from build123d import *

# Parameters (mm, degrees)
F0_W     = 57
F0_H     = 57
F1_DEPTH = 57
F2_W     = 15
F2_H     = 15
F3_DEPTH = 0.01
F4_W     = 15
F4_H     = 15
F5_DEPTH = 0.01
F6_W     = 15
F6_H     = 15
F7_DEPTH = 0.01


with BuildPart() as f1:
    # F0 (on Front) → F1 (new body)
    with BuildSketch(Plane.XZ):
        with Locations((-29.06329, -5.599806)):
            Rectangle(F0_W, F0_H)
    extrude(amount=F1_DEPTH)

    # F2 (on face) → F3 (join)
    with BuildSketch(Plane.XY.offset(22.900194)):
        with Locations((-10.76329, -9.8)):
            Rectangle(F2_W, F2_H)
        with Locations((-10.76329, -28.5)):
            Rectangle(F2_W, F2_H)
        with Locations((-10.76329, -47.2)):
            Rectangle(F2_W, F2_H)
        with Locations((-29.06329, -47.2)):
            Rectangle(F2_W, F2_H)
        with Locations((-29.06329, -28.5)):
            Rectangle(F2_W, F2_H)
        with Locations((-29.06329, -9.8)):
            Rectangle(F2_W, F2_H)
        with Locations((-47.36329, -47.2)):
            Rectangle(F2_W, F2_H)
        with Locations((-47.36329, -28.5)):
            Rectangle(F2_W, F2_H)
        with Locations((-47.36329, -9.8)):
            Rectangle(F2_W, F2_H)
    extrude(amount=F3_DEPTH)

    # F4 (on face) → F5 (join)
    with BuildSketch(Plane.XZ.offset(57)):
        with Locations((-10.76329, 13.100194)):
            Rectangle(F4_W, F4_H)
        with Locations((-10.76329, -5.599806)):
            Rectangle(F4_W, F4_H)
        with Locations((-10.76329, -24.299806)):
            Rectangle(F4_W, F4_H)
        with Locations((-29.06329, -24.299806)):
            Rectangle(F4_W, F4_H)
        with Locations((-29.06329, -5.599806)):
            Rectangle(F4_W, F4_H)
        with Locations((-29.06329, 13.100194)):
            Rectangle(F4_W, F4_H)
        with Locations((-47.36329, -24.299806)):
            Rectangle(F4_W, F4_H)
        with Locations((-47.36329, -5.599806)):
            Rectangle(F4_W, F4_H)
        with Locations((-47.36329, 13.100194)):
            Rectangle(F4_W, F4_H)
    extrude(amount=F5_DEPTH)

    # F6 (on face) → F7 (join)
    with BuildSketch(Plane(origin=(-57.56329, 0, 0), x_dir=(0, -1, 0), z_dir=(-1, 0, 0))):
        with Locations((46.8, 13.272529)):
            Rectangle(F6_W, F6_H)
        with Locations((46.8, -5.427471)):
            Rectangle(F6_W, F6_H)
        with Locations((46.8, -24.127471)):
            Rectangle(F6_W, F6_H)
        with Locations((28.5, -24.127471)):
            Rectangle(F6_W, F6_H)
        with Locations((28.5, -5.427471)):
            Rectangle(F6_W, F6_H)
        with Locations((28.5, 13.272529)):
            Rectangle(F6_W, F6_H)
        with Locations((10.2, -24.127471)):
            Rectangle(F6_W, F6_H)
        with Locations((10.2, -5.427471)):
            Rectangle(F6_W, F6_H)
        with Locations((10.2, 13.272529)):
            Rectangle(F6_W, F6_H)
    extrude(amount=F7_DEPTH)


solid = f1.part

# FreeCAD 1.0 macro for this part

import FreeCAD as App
import Part
import Sketcher

V = App.Vector
Q = App.Units.Quantity

doc = App.newDocument("Part")
body = doc.addObject("PartDesign::Body", "Body")

sketch1 = body.newObject("Sketcher::SketchObject", "Sketch")
sketch1.AttachmentSupport = (doc.getObject("XZ_Plane"), [""])
sketch1.MapMode = "FlatFace"
sketch1.addGeometry([
    Part.LineSegment(V(-57.56329, 22.900194, 0), V(-57.56329, -34.099806, 0)),
    Part.LineSegment(V(-57.56329, -34.099806, 0), V(-0.56329, -34.099806, 0)),
    Part.LineSegment(V(-0.56329, -34.099806, 0), V(-0.56329, 22.900194, 0)),
    Part.LineSegment(V(-0.56329, 22.900194, 0), V(-57.56329, 22.900194, 0)),
], False)
sketch1.addConstraint([
    Sketcher.Constraint("Coincident", 0, 2, 1, 1),
    Sketcher.Constraint("Coincident", 1, 2, 2, 1),
    Sketcher.Constraint("Coincident", 2, 2, 3, 1),
    Sketcher.Constraint("Coincident", 3, 2, 0, 1),
    Sketcher.Constraint("Vertical", 0),
    Sketcher.Constraint("Horizontal", 1),
    Sketcher.Constraint("Vertical", 2),
    Sketcher.Constraint("Horizontal", 3),
    Sketcher.Constraint("Equal", 3, 0),
    Sketcher.Constraint("DistanceX", 1, 1, 1, 2, Q("57 mm")),
    Sketcher.Constraint("DistanceX", 0, 2, -1, 1, Q("57.56329 mm")),
    Sketcher.Constraint("DistanceY", 0, 2, -1, 1, Q("34.099806 mm")),
])
pad1 = body.newObject("PartDesign::Pad", "Pad")
pad1.Profile = sketch1
pad1.Length = 57

sketch2 = body.newObject("Sketcher::SketchObject", "Sketch001")
sketch2.AttachmentSupport = (doc.getObject("XY_Plane"), [""])
sketch2.MapMode = "FlatFace"
sketch2.AttachmentOffset = App.Placement(V(0, 0, 22.900194), App.Rotation())
sketch2.addGeometry([
    Part.LineSegment(V(-18.26329, -2.3, 0), V(-18.26329, -17.3, 0)),
    Part.LineSegment(V(-18.26329, -17.3, 0), V(-3.26329, -17.3, 0)),
    Part.LineSegment(V(-3.26329, -17.3, 0), V(-3.26329, -2.3, 0)),
    Part.LineSegment(V(-3.26329, -2.3, 0), V(-18.26329, -2.3, 0)),
    Part.LineSegment(V(-18.26329, -21, 0), V(-18.26329, -36, 0)),
    Part.LineSegment(V(-18.26329, -36, 0), V(-3.26329, -36, 0)),
    Part.LineSegment(V(-3.26329, -36, 0), V(-3.26329, -21, 0)),
    Part.LineSegment(V(-3.26329, -21, 0), V(-18.26329, -21, 0)),
    Part.LineSegment(V(-18.26329, -39.7, 0), V(-18.26329, -54.7, 0)),
    Part.LineSegment(V(-18.26329, -54.7, 0), V(-3.26329, -54.7, 0)),
    Part.LineSegment(V(-3.26329, -54.7, 0), V(-3.26329, -39.7, 0)),
    Part.LineSegment(V(-3.26329, -39.7, 0), V(-18.26329, -39.7, 0)),
    Part.LineSegment(V(-36.56329, -39.7, 0), V(-36.56329, -54.7, 0)),
    Part.LineSegment(V(-36.56329, -54.7, 0), V(-21.56329, -54.7, 0)),
    Part.LineSegment(V(-21.56329, -54.7, 0), V(-21.56329, -39.7, 0)),
    Part.LineSegment(V(-21.56329, -39.7, 0), V(-36.56329, -39.7, 0)),
    Part.LineSegment(V(-36.56329, -21, 0), V(-36.56329, -36, 0)),
    Part.LineSegment(V(-36.56329, -36, 0), V(-21.56329, -36, 0)),
    Part.LineSegment(V(-21.56329, -36, 0), V(-21.56329, -21, 0)),
    Part.LineSegment(V(-21.56329, -21, 0), V(-36.56329, -21, 0)),
    Part.LineSegment(V(-36.56329, -2.3, 0), V(-36.56329, -17.3, 0)),
    Part.LineSegment(V(-36.56329, -17.3, 0), V(-21.56329, -17.3, 0)),
    Part.LineSegment(V(-21.56329, -17.3, 0), V(-21.56329, -2.3, 0)),
    Part.LineSegment(V(-21.56329, -2.3, 0), V(-36.56329, -2.3, 0)),
    Part.LineSegment(V(-54.86329, -39.7, 0), V(-54.86329, -54.7, 0)),
    Part.LineSegment(V(-54.86329, -54.7, 0), V(-39.86329, -54.7, 0)),
    Part.LineSegment(V(-39.86329, -54.7, 0), V(-39.86329, -39.7, 0)),
    Part.LineSegment(V(-39.86329, -39.7, 0), V(-54.86329, -39.7, 0)),
    Part.LineSegment(V(-54.86329, -21, 0), V(-54.86329, -36, 0)),
    Part.LineSegment(V(-54.86329, -36, 0), V(-39.86329, -36, 0)),
    Part.LineSegment(V(-39.86329, -36, 0), V(-39.86329, -21, 0)),
    Part.LineSegment(V(-39.86329, -21, 0), V(-54.86329, -21, 0)),
    Part.LineSegment(V(-54.86329, -2.3, 0), V(-54.86329, -17.3, 0)),
    Part.LineSegment(V(-54.86329, -17.3, 0), V(-39.86329, -17.3, 0)),
    Part.LineSegment(V(-39.86329, -17.3, 0), V(-39.86329, -2.3, 0)),
    Part.LineSegment(V(-39.86329, -2.3, 0), V(-54.86329, -2.3, 0)),
], False)
sketch2.addConstraint([
    Sketcher.Constraint("Coincident", 0, 2, 1, 1),
    Sketcher.Constraint("Coincident", 1, 2, 2, 1),
    Sketcher.Constraint("Coincident", 2, 2, 3, 1),
    Sketcher.Constraint("Coincident", 3, 2, 0, 1),
    Sketcher.Constraint("Coincident", 4, 2, 5, 1),
    Sketcher.Constraint("Coincident", 5, 2, 6, 1),
    Sketcher.Constraint("Coincident", 6, 2, 7, 1),
    Sketcher.Constraint("Coincident", 7, 2, 4, 1),
    Sketcher.Constraint("Coincident", 8, 2, 9, 1),
    Sketcher.Constraint("Coincident", 9, 2, 10, 1),
    Sketcher.Constraint("Coincident", 10, 2, 11, 1),
    Sketcher.Constraint("Coincident", 11, 2, 8, 1),
    Sketcher.Constraint("Coincident", 12, 2, 13, 1),
    Sketcher.Constraint("Coincident", 13, 2, 14, 1),
    Sketcher.Constraint("Coincident", 14, 2, 15, 1),
    Sketcher.Constraint("Coincident", 15, 2, 12, 1),
    Sketcher.Constraint("Coincident", 16, 2, 17, 1),
    Sketcher.Constraint("Coincident", 17, 2, 18, 1),
    Sketcher.Constraint("Coincident", 18, 2, 19, 1),
    Sketcher.Constraint("Coincident", 19, 2, 16, 1),
    Sketcher.Constraint("Coincident", 20, 2, 21, 1),
    Sketcher.Constraint("Coincident", 21, 2, 22, 1),
    Sketcher.Constraint("Coincident", 22, 2, 23, 1),
    Sketcher.Constraint("Coincident", 23, 2, 20, 1),
    Sketcher.Constraint("Coincident", 24, 2, 25, 1),
    Sketcher.Constraint("Coincident", 25, 2, 26, 1),
    Sketcher.Constraint("Coincident", 26, 2, 27, 1),
    Sketcher.Constraint("Coincident", 27, 2, 24, 1),
    Sketcher.Constraint("Coincident", 28, 2, 29, 1),
    Sketcher.Constraint("Coincident", 29, 2, 30, 1),
    Sketcher.Constraint("Coincident", 30, 2, 31, 1),
    Sketcher.Constraint("Coincident", 31, 2, 28, 1),
    Sketcher.Constraint("Coincident", 32, 2, 33, 1),
    Sketcher.Constraint("Coincident", 33, 2, 34, 1),
    Sketcher.Constraint("Coincident", 34, 2, 35, 1),
    Sketcher.Constraint("Coincident", 35, 2, 32, 1),
    Sketcher.Constraint("Vertical", 0),
    Sketcher.Constraint("Horizontal", 1),
    Sketcher.Constraint("Vertical", 2),
    Sketcher.Constraint("Horizontal", 3),
    Sketcher.Constraint("Vertical", 4),
    Sketcher.Constraint("Horizontal", 5),
    Sketcher.Constraint("Vertical", 6),
    Sketcher.Constraint("Horizontal", 7),
    Sketcher.Constraint("Vertical", 8),
    Sketcher.Constraint("Horizontal", 9),
    Sketcher.Constraint("Vertical", 10),
    Sketcher.Constraint("Horizontal", 11),
    Sketcher.Constraint("Vertical", 12),
    Sketcher.Constraint("Horizontal", 13),
    Sketcher.Constraint("Vertical", 14),
    Sketcher.Constraint("Horizontal", 15),
    Sketcher.Constraint("Vertical", 16),
    Sketcher.Constraint("Horizontal", 17),
    Sketcher.Constraint("Vertical", 18),
    Sketcher.Constraint("Horizontal", 19),
    Sketcher.Constraint("Vertical", 20),
    Sketcher.Constraint("Horizontal", 21),
    Sketcher.Constraint("Vertical", 22),
    Sketcher.Constraint("Horizontal", 23),
    Sketcher.Constraint("Vertical", 24),
    Sketcher.Constraint("Horizontal", 25),
    Sketcher.Constraint("Vertical", 26),
    Sketcher.Constraint("Horizontal", 27),
    Sketcher.Constraint("Vertical", 28),
    Sketcher.Constraint("Horizontal", 29),
    Sketcher.Constraint("Vertical", 30),
    Sketcher.Constraint("Horizontal", 31),
    Sketcher.Constraint("Vertical", 32),
    Sketcher.Constraint("Horizontal", 33),
    Sketcher.Constraint("Vertical", 34),
    Sketcher.Constraint("Horizontal", 35),
    Sketcher.Constraint("Horizontal", 9, 2, 12, 2),
    Sketcher.Constraint("Horizontal", 11, 2, 14, 2),
    Sketcher.Constraint("Horizontal", 5, 2, 16, 2),
    Sketcher.Constraint("Horizontal", 7, 2, 18, 2),
    Sketcher.Constraint("Horizontal", 1, 2, 20, 2),
    Sketcher.Constraint("Horizontal", 3, 2, 22, 2),
    Sketcher.Constraint("Horizontal", 13, 2, 24, 2),
    Sketcher.Constraint("Horizontal", 15, 2, 26, 2),
    Sketcher.Constraint("Horizontal", 17, 2, 28, 2),
    Sketcher.Constraint("Horizontal", 19, 2, 30, 2),
    Sketcher.Constraint("Horizontal", 21, 2, 32, 2),
    Sketcher.Constraint("Horizontal", 23, 2, 34, 2),
    Sketcher.Constraint("Vertical", 3, 2, 4, 2),
    Sketcher.Constraint("Vertical", 2, 2, 5, 2),
    Sketcher.Constraint("Vertical", 7, 2, 8, 2),
    Sketcher.Constraint("Vertical", 6, 2, 9, 2),
    Sketcher.Constraint("Vertical", 15, 2, 16, 2),
    Sketcher.Constraint("Vertical", 14, 2, 17, 2),
    Sketcher.Constraint("Vertical", 19, 2, 20, 2),
    Sketcher.Constraint("Vertical", 18, 2, 21, 2),
    Sketcher.Constraint("Vertical", 27, 2, 28, 2),
    Sketcher.Constraint("Vertical", 26, 2, 29, 2),
    Sketcher.Constraint("Vertical", 31, 2, 32, 2),
    Sketcher.Constraint("Vertical", 30, 2, 33, 2),
    Sketcher.Constraint("Equal", 11, 13),
    Sketcher.Constraint("Equal", 23, 25),
    Sketcher.Constraint("Equal", 35, 0),
    Sketcher.Constraint("Equal", 2, 4),
    Sketcher.Constraint("Equal", 6, 8),
    Sketcher.Constraint("DistanceX", 1, 1, 1, 2, Q("15 mm")),
    Sketcher.Constraint("DistanceY", 4, 2, -1, 1, Q("36 mm")),
    Sketcher.Constraint("DistanceY", 0, 2, -1, 1, Q("17.3 mm")),
    Sketcher.Constraint("DistanceY", 8, 2, -1, 1, Q("54.7 mm")),
    Sketcher.Constraint("DistanceX", 12, 2, 8, 2, Q("18.3 mm")),
    Sketcher.Constraint("DistanceX", 24, 2, 12, 2, Q("18.3 mm")),
    Sketcher.Constraint("DistanceX", 0, 2, -1, 1, Q("18.26329 mm")),
])
pad2 = body.newObject("PartDesign::Pad", "Pad001")
pad2.Profile = sketch2
pad2.Length = 0.01

sketch3 = body.newObject("Sketcher::SketchObject", "Sketch002")
sketch3.AttachmentSupport = (doc.getObject("XZ_Plane"), [""])
sketch3.MapMode = "FlatFace"
sketch3.AttachmentOffset = App.Placement(V(0, 0, 57), App.Rotation())
sketch3.addGeometry([
    Part.LineSegment(V(-18.26329, 20.600194, 0), V(-18.26329, 5.600194, 0)),
    Part.LineSegment(V(-18.26329, 5.600194, 0), V(-3.26329, 5.600194, 0)),
    Part.LineSegment(V(-3.26329, 5.600194, 0), V(-3.26329, 20.600194, 0)),
    Part.LineSegment(V(-3.26329, 20.600194, 0), V(-18.26329, 20.600194, 0)),
    Part.LineSegment(V(-18.26329, 1.900194, 0), V(-18.26329, -13.099806, 0)),
    Part.LineSegment(V(-18.26329, -13.099806, 0), V(-3.26329, -13.099806, 0)),
    Part.LineSegment(V(-3.26329, -13.099806, 0), V(-3.26329, 1.900194, 0)),
    Part.LineSegment(V(-3.26329, 1.900194, 0), V(-18.26329, 1.900194, 0)),
    Part.LineSegment(V(-18.26329, -16.799806, 0), V(-18.26329, -31.799806, 0)),
    Part.LineSegment(V(-18.26329, -31.799806, 0), V(-3.26329, -31.799806, 0)),
    Part.LineSegment(V(-3.26329, -31.799806, 0), V(-3.26329, -16.799806, 0)),
    Part.LineSegment(V(-3.26329, -16.799806, 0), V(-18.26329, -16.799806, 0)),
    Part.LineSegment(V(-36.56329, -16.799806, 0), V(-36.56329, -31.799806, 0)),
    Part.LineSegment(V(-36.56329, -31.799806, 0), V(-21.56329, -31.799806, 0)),
    Part.LineSegment(V(-21.56329, -31.799806, 0), V(-21.56329, -16.799806, 0)),
    Part.LineSegment(V(-21.56329, -16.799806, 0), V(-36.56329, -16.799806, 0)),
    Part.LineSegment(V(-36.56329, 1.900194, 0), V(-36.56329, -13.099806, 0)),
    Part.LineSegment(V(-36.56329, -13.099806, 0), V(-21.56329, -13.099806, 0)),
    Part.LineSegment(V(-21.56329, -13.099806, 0), V(-21.56329, 1.900194, 0)),
    Part.LineSegment(V(-21.56329, 1.900194, 0), V(-36.56329, 1.900194, 0)),
    Part.LineSegment(V(-36.56329, 20.600194, 0), V(-36.56329, 5.600194, 0)),
    Part.LineSegment(V(-36.56329, 5.600194, 0), V(-21.56329, 5.600194, 0)),
    Part.LineSegment(V(-21.56329, 5.600194, 0), V(-21.56329, 20.600194, 0)),
    Part.LineSegment(V(-21.56329, 20.600194, 0), V(-36.56329, 20.600194, 0)),
    Part.LineSegment(V(-54.86329, -16.799806, 0), V(-54.86329, -31.799806, 0)),
    Part.LineSegment(V(-54.86329, -31.799806, 0), V(-39.86329, -31.799806, 0)),
    Part.LineSegment(V(-39.86329, -31.799806, 0), V(-39.86329, -16.799806, 0)),
    Part.LineSegment(V(-39.86329, -16.799806, 0), V(-54.86329, -16.799806, 0)),
    Part.LineSegment(V(-54.86329, 1.900194, 0), V(-54.86329, -13.099806, 0)),
    Part.LineSegment(V(-54.86329, -13.099806, 0), V(-39.86329, -13.099806, 0)),
    Part.LineSegment(V(-39.86329, -13.099806, 0), V(-39.86329, 1.900194, 0)),
    Part.LineSegment(V(-39.86329, 1.900194, 0), V(-54.86329, 1.900194, 0)),
    Part.LineSegment(V(-54.86329, 20.600194, 0), V(-54.86329, 5.600194, 0)),
    Part.LineSegment(V(-54.86329, 5.600194, 0), V(-39.86329, 5.600194, 0)),
    Part.LineSegment(V(-39.86329, 5.600194, 0), V(-39.86329, 20.600194, 0)),
    Part.LineSegment(V(-39.86329, 20.600194, 0), V(-54.86329, 20.600194, 0)),
], False)
sketch3.addConstraint([
    Sketcher.Constraint("Coincident", 0, 2, 1, 1),
    Sketcher.Constraint("Coincident", 1, 2, 2, 1),
    Sketcher.Constraint("Coincident", 2, 2, 3, 1),
    Sketcher.Constraint("Coincident", 3, 2, 0, 1),
    Sketcher.Constraint("Coincident", 4, 2, 5, 1),
    Sketcher.Constraint("Coincident", 5, 2, 6, 1),
    Sketcher.Constraint("Coincident", 6, 2, 7, 1),
    Sketcher.Constraint("Coincident", 7, 2, 4, 1),
    Sketcher.Constraint("Coincident", 8, 2, 9, 1),
    Sketcher.Constraint("Coincident", 9, 2, 10, 1),
    Sketcher.Constraint("Coincident", 10, 2, 11, 1),
    Sketcher.Constraint("Coincident", 11, 2, 8, 1),
    Sketcher.Constraint("Coincident", 12, 2, 13, 1),
    Sketcher.Constraint("Coincident", 13, 2, 14, 1),
    Sketcher.Constraint("Coincident", 14, 2, 15, 1),
    Sketcher.Constraint("Coincident", 15, 2, 12, 1),
    Sketcher.Constraint("Coincident", 16, 2, 17, 1),
    Sketcher.Constraint("Coincident", 17, 2, 18, 1),
    Sketcher.Constraint("Coincident", 18, 2, 19, 1),
    Sketcher.Constraint("Coincident", 19, 2, 16, 1),
    Sketcher.Constraint("Coincident", 20, 2, 21, 1),
    Sketcher.Constraint("Coincident", 21, 2, 22, 1),
    Sketcher.Constraint("Coincident", 22, 2, 23, 1),
    Sketcher.Constraint("Coincident", 23, 2, 20, 1),
    Sketcher.Constraint("Coincident", 24, 2, 25, 1),
    Sketcher.Constraint("Coincident", 25, 2, 26, 1),
    Sketcher.Constraint("Coincident", 26, 2, 27, 1),
    Sketcher.Constraint("Coincident", 27, 2, 24, 1),
    Sketcher.Constraint("Coincident", 28, 2, 29, 1),
    Sketcher.Constraint("Coincident", 29, 2, 30, 1),
    Sketcher.Constraint("Coincident", 30, 2, 31, 1),
    Sketcher.Constraint("Coincident", 31, 2, 28, 1),
    Sketcher.Constraint("Coincident", 32, 2, 33, 1),
    Sketcher.Constraint("Coincident", 33, 2, 34, 1),
    Sketcher.Constraint("Coincident", 34, 2, 35, 1),
    Sketcher.Constraint("Coincident", 35, 2, 32, 1),
    Sketcher.Constraint("Vertical", 0),
    Sketcher.Constraint("Horizontal", 1),
    Sketcher.Constraint("Vertical", 2),
    Sketcher.Constraint("Horizontal", 3),
    Sketcher.Constraint("Vertical", 4),
    Sketcher.Constraint("Horizontal", 5),
    Sketcher.Constraint("Vertical", 6),
    Sketcher.Constraint("Horizontal", 7),
    Sketcher.Constraint("Vertical", 8),
    Sketcher.Constraint("Horizontal", 9),
    Sketcher.Constraint("Vertical", 10),
    Sketcher.Constraint("Horizontal", 11),
    Sketcher.Constraint("Vertical", 12),
    Sketcher.Constraint("Horizontal", 13),
    Sketcher.Constraint("Vertical", 14),
    Sketcher.Constraint("Horizontal", 15),
    Sketcher.Constraint("Vertical", 16),
    Sketcher.Constraint("Horizontal", 17),
    Sketcher.Constraint("Vertical", 18),
    Sketcher.Constraint("Horizontal", 19),
    Sketcher.Constraint("Vertical", 20),
    Sketcher.Constraint("Horizontal", 21),
    Sketcher.Constraint("Vertical", 22),
    Sketcher.Constraint("Horizontal", 23),
    Sketcher.Constraint("Vertical", 24),
    Sketcher.Constraint("Horizontal", 25),
    Sketcher.Constraint("Vertical", 26),
    Sketcher.Constraint("Horizontal", 27),
    Sketcher.Constraint("Vertical", 28),
    Sketcher.Constraint("Horizontal", 29),
    Sketcher.Constraint("Vertical", 30),
    Sketcher.Constraint("Horizontal", 31),
    Sketcher.Constraint("Vertical", 32),
    Sketcher.Constraint("Horizontal", 33),
    Sketcher.Constraint("Vertical", 34),
    Sketcher.Constraint("Horizontal", 35),
    Sketcher.Constraint("Horizontal", 9, 2, 12, 2),
    Sketcher.Constraint("Horizontal", 11, 2, 14, 2),
    Sketcher.Constraint("Horizontal", 5, 2, 16, 2),
    Sketcher.Constraint("Horizontal", 7, 2, 18, 2),
    Sketcher.Constraint("Horizontal", 1, 2, 20, 2),
    Sketcher.Constraint("Horizontal", 3, 2, 22, 2),
    Sketcher.Constraint("Horizontal", 13, 2, 24, 2),
    Sketcher.Constraint("Horizontal", 15, 2, 26, 2),
    Sketcher.Constraint("Horizontal", 17, 2, 28, 2),
    Sketcher.Constraint("Horizontal", 19, 2, 30, 2),
    Sketcher.Constraint("Horizontal", 21, 2, 32, 2),
    Sketcher.Constraint("Horizontal", 23, 2, 34, 2),
    Sketcher.Constraint("Vertical", 3, 2, 4, 2),
    Sketcher.Constraint("Vertical", 2, 2, 5, 2),
    Sketcher.Constraint("Vertical", 7, 2, 8, 2),
    Sketcher.Constraint("Vertical", 6, 2, 9, 2),
    Sketcher.Constraint("Vertical", 15, 2, 16, 2),
    Sketcher.Constraint("Vertical", 14, 2, 17, 2),
    Sketcher.Constraint("Vertical", 19, 2, 20, 2),
    Sketcher.Constraint("Vertical", 18, 2, 21, 2),
    Sketcher.Constraint("Vertical", 27, 2, 28, 2),
    Sketcher.Constraint("Vertical", 26, 2, 29, 2),
    Sketcher.Constraint("Vertical", 31, 2, 32, 2),
    Sketcher.Constraint("Vertical", 30, 2, 33, 2),
    Sketcher.Constraint("Equal", 11, 13),
    Sketcher.Constraint("Equal", 23, 25),
    Sketcher.Constraint("Equal", 35, 0),
    Sketcher.Constraint("Equal", 2, 4),
    Sketcher.Constraint("Equal", 6, 8),
    Sketcher.Constraint("DistanceX", 1, 1, 1, 2, Q("15 mm")),
    Sketcher.Constraint("DistanceY", 4, 2, 0, 2, Q("18.7 mm")),
    Sketcher.Constraint("DistanceY", 8, 2, 4, 2, Q("18.7 mm")),
    Sketcher.Constraint("DistanceX", 12, 2, 8, 2, Q("18.3 mm")),
    Sketcher.Constraint("DistanceX", 24, 2, 12, 2, Q("18.3 mm")),
    Sketcher.Constraint("DistanceX", 0, 2, -1, 1, Q("18.26329 mm")),
    Sketcher.Constraint("DistanceY", -1, 1, 0, 2, Q("5.600194 mm")),
])
pad3 = body.newObject("PartDesign::Pad", "Pad002")
pad3.Profile = sketch3
pad3.Length = 0.01

sketch4 = body.newObject("Sketcher::SketchObject", "Sketch003")
sketch4.AttachmentSupport = (doc.getObject("YZ_Plane"), [""])
sketch4.MapMode = "FlatFace"
sketch4.AttachmentOffset = App.Placement(V(0, 0, -57.56329), App.Rotation())
sketch4.addGeometry([
    Part.LineSegment(V(-39.3, 20.772529, 0), V(-39.3, 5.772529, 0)),
    Part.LineSegment(V(-39.3, 5.772529, 0), V(-54.3, 5.772529, 0)),
    Part.LineSegment(V(-54.3, 5.772529, 0), V(-54.3, 20.772529, 0)),
    Part.LineSegment(V(-54.3, 20.772529, 0), V(-39.3, 20.772529, 0)),
    Part.LineSegment(V(-39.3, 2.072529, 0), V(-39.3, -12.927471, 0)),
    Part.LineSegment(V(-39.3, -12.927471, 0), V(-54.3, -12.927471, 0)),
    Part.LineSegment(V(-54.3, -12.927471, 0), V(-54.3, 2.072529, 0)),
    Part.LineSegment(V(-54.3, 2.072529, 0), V(-39.3, 2.072529, 0)),
    Part.LineSegment(V(-39.3, -16.627471, 0), V(-39.3, -31.627471, 0)),
    Part.LineSegment(V(-39.3, -31.627471, 0), V(-54.3, -31.627471, 0)),
    Part.LineSegment(V(-54.3, -31.627471, 0), V(-54.3, -16.627471, 0)),
    Part.LineSegment(V(-54.3, -16.627471, 0), V(-39.3, -16.627471, 0)),
    Part.LineSegment(V(-21, -16.627471, 0), V(-21, -31.627471, 0)),
    Part.LineSegment(V(-21, -31.627471, 0), V(-36, -31.627471, 0)),
    Part.LineSegment(V(-36, -31.627471, 0), V(-36, -16.627471, 0)),
    Part.LineSegment(V(-36, -16.627471, 0), V(-21, -16.627471, 0)),
    Part.LineSegment(V(-21, 2.072529, 0), V(-21, -12.927471, 0)),
    Part.LineSegment(V(-21, -12.927471, 0), V(-36, -12.927471, 0)),
    Part.LineSegment(V(-36, -12.927471, 0), V(-36, 2.072529, 0)),
    Part.LineSegment(V(-36, 2.072529, 0), V(-21, 2.072529, 0)),
    Part.LineSegment(V(-21, 20.772529, 0), V(-21, 5.772529, 0)),
    Part.LineSegment(V(-21, 5.772529, 0), V(-36, 5.772529, 0)),
    Part.LineSegment(V(-36, 5.772529, 0), V(-36, 20.772529, 0)),
    Part.LineSegment(V(-36, 20.772529, 0), V(-21, 20.772529, 0)),
    Part.LineSegment(V(-2.7, -16.627471, 0), V(-2.7, -31.627471, 0)),
    Part.LineSegment(V(-2.7, -31.627471, 0), V(-17.7, -31.627471, 0)),
    Part.LineSegment(V(-17.7, -31.627471, 0), V(-17.7, -16.627471, 0)),
    Part.LineSegment(V(-17.7, -16.627471, 0), V(-2.7, -16.627471, 0)),
    Part.LineSegment(V(-2.7, 2.072529, 0), V(-2.7, -12.927471, 0)),
    Part.LineSegment(V(-2.7, -12.927471, 0), V(-17.7, -12.927471, 0)),
    Part.LineSegment(V(-17.7, -12.927471, 0), V(-17.7, 2.072529, 0)),
    Part.LineSegment(V(-17.7, 2.072529, 0), V(-2.7, 2.072529, 0)),
    Part.LineSegment(V(-2.7, 20.772529, 0), V(-2.7, 5.772529, 0)),
    Part.LineSegment(V(-2.7, 5.772529, 0), V(-17.7, 5.772529, 0)),
    Part.LineSegment(V(-17.7, 5.772529, 0), V(-17.7, 20.772529, 0)),
    Part.LineSegment(V(-17.7, 20.772529, 0), V(-2.7, 20.772529, 0)),
], False)
sketch4.addConstraint([
    Sketcher.Constraint("Coincident", 0, 2, 1, 1),
    Sketcher.Constraint("Coincident", 1, 2, 2, 1),
    Sketcher.Constraint("Coincident", 2, 2, 3, 1),
    Sketcher.Constraint("Coincident", 3, 2, 0, 1),
    Sketcher.Constraint("Coincident", 4, 2, 5, 1),
    Sketcher.Constraint("Coincident", 5, 2, 6, 1),
    Sketcher.Constraint("Coincident", 6, 2, 7, 1),
    Sketcher.Constraint("Coincident", 7, 2, 4, 1),
    Sketcher.Constraint("Coincident", 8, 2, 9, 1),
    Sketcher.Constraint("Coincident", 9, 2, 10, 1),
    Sketcher.Constraint("Coincident", 10, 2, 11, 1),
    Sketcher.Constraint("Coincident", 11, 2, 8, 1),
    Sketcher.Constraint("Coincident", 12, 2, 13, 1),
    Sketcher.Constraint("Coincident", 13, 2, 14, 1),
    Sketcher.Constraint("Coincident", 14, 2, 15, 1),
    Sketcher.Constraint("Coincident", 15, 2, 12, 1),
    Sketcher.Constraint("Coincident", 16, 2, 17, 1),
    Sketcher.Constraint("Coincident", 17, 2, 18, 1),
    Sketcher.Constraint("Coincident", 18, 2, 19, 1),
    Sketcher.Constraint("Coincident", 19, 2, 16, 1),
    Sketcher.Constraint("Coincident", 20, 2, 21, 1),
    Sketcher.Constraint("Coincident", 21, 2, 22, 1),
    Sketcher.Constraint("Coincident", 22, 2, 23, 1),
    Sketcher.Constraint("Coincident", 23, 2, 20, 1),
    Sketcher.Constraint("Coincident", 24, 2, 25, 1),
    Sketcher.Constraint("Coincident", 25, 2, 26, 1),
    Sketcher.Constraint("Coincident", 26, 2, 27, 1),
    Sketcher.Constraint("Coincident", 27, 2, 24, 1),
    Sketcher.Constraint("Coincident", 28, 2, 29, 1),
    Sketcher.Constraint("Coincident", 29, 2, 30, 1),
    Sketcher.Constraint("Coincident", 30, 2, 31, 1),
    Sketcher.Constraint("Coincident", 31, 2, 28, 1),
    Sketcher.Constraint("Coincident", 32, 2, 33, 1),
    Sketcher.Constraint("Coincident", 33, 2, 34, 1),
    Sketcher.Constraint("Coincident", 34, 2, 35, 1),
    Sketcher.Constraint("Coincident", 35, 2, 32, 1),
    Sketcher.Constraint("Vertical", 0),
    Sketcher.Constraint("Horizontal", 1),
    Sketcher.Constraint("Vertical", 2),
    Sketcher.Constraint("Horizontal", 3),
    Sketcher.Constraint("Vertical", 4),
    Sketcher.Constraint("Horizontal", 5),
    Sketcher.Constraint("Vertical", 6),
    Sketcher.Constraint("Horizontal", 7),
    Sketcher.Constraint("Vertical", 8),
    Sketcher.Constraint("Horizontal", 9),
    Sketcher.Constraint("Vertical", 10),
    Sketcher.Constraint("Horizontal", 11),
    Sketcher.Constraint("Vertical", 12),
    Sketcher.Constraint("Horizontal", 13),
    Sketcher.Constraint("Vertical", 14),
    Sketcher.Constraint("Horizontal", 15),
    Sketcher.Constraint("Vertical", 16),
    Sketcher.Constraint("Horizontal", 17),
    Sketcher.Constraint("Vertical", 18),
    Sketcher.Constraint("Horizontal", 19),
    Sketcher.Constraint("Vertical", 20),
    Sketcher.Constraint("Horizontal", 21),
    Sketcher.Constraint("Vertical", 22),
    Sketcher.Constraint("Horizontal", 23),
    Sketcher.Constraint("Vertical", 24),
    Sketcher.Constraint("Horizontal", 25),
    Sketcher.Constraint("Vertical", 26),
    Sketcher.Constraint("Horizontal", 27),
    Sketcher.Constraint("Vertical", 28),
    Sketcher.Constraint("Horizontal", 29),
    Sketcher.Constraint("Vertical", 30),
    Sketcher.Constraint("Horizontal", 31),
    Sketcher.Constraint("Vertical", 32),
    Sketcher.Constraint("Horizontal", 33),
    Sketcher.Constraint("Vertical", 34),
    Sketcher.Constraint("Horizontal", 35),
    Sketcher.Constraint("Horizontal", 9, 2, 12, 2),
    Sketcher.Constraint("Horizontal", 11, 2, 14, 2),
    Sketcher.Constraint("Horizontal", 5, 2, 16, 2),
    Sketcher.Constraint("Horizontal", 7, 2, 18, 2),
    Sketcher.Constraint("Horizontal", 1, 2, 20, 2),
    Sketcher.Constraint("Horizontal", 3, 2, 22, 2),
    Sketcher.Constraint("Horizontal", 13, 2, 24, 2),
    Sketcher.Constraint("Horizontal", 15, 2, 26, 2),
    Sketcher.Constraint("Horizontal", 17, 2, 28, 2),
    Sketcher.Constraint("Horizontal", 19, 2, 30, 2),
    Sketcher.Constraint("Horizontal", 21, 2, 32, 2),
    Sketcher.Constraint("Horizontal", 23, 2, 34, 2),
    Sketcher.Constraint("Vertical", 3, 2, 4, 2),
    Sketcher.Constraint("Vertical", 2, 2, 5, 2),
    Sketcher.Constraint("Vertical", 7, 2, 8, 2),
    Sketcher.Constraint("Vertical", 6, 2, 9, 2),
    Sketcher.Constraint("Vertical", 15, 2, 16, 2),
    Sketcher.Constraint("Vertical", 14, 2, 17, 2),
    Sketcher.Constraint("Vertical", 19, 2, 20, 2),
    Sketcher.Constraint("Vertical", 18, 2, 21, 2),
    Sketcher.Constraint("Vertical", 27, 2, 28, 2),
    Sketcher.Constraint("Vertical", 26, 2, 29, 2),
    Sketcher.Constraint("Vertical", 31, 2, 32, 2),
    Sketcher.Constraint("Vertical", 30, 2, 33, 2),
    Sketcher.Constraint("Equal", 11, 13),
    Sketcher.Constraint("Equal", 23, 25),
    Sketcher.Constraint("Equal", 35, 0),
    Sketcher.Constraint("Equal", 2, 4),
    Sketcher.Constraint("Equal", 6, 8),
    Sketcher.Constraint("DistanceX", 1, 2, 1, 1, Q("15 mm")),
    Sketcher.Constraint("DistanceX", 12, 2, -1, 1, Q("21 mm")),
    Sketcher.Constraint("DistanceX", 0, 2, -1, 1, Q("39.3 mm")),
    Sketcher.Constraint("DistanceX", 24, 2, -1, 1, Q("2.7 mm")),
    Sketcher.Constraint("DistanceY", 4, 2, 0, 2, Q("18.7 mm")),
    Sketcher.Constraint("DistanceY", 8, 2, 4, 2, Q("18.7 mm")),
    Sketcher.Constraint("DistanceY", -1, 1, 0, 2, Q("5.772529 mm")),
])
pad4 = body.newObject("PartDesign::Pad", "Pad003")
pad4.Profile = sketch4
pad4.Length = 0.01
pad4.Reversed = True

doc.recompute()
